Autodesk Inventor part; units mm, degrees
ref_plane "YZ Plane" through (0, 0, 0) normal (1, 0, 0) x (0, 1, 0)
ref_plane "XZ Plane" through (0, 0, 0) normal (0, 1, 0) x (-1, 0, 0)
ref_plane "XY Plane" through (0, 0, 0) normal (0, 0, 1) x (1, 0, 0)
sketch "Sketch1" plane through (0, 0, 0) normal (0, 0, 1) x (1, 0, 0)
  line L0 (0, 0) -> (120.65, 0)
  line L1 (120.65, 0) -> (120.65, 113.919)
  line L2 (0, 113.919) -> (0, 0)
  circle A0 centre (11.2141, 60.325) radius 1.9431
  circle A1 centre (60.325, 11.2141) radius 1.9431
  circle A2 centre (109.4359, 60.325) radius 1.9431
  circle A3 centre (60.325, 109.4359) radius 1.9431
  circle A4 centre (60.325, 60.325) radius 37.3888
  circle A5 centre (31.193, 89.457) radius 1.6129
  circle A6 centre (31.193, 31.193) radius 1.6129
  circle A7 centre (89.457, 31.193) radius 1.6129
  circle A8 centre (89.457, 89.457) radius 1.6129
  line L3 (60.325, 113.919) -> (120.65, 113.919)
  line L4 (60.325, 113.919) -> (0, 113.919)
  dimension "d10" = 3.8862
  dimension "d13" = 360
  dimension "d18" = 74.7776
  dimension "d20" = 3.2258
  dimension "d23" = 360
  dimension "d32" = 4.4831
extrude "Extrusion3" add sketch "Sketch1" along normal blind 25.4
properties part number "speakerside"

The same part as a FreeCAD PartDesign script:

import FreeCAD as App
import Part
import Sketcher
Q = App.Units.Quantity


def add_polygon(sketch, points):
    """Adds a closed chain of lines whose ends are joined by coincident constraints."""
    first, n = sketch.GeometryCount, len(points)
    for a, b in zip(points, points[1:] + points[:1]):
        sketch.addGeometry(Part.LineSegment(App.Vector(*a, 0), App.Vector(*b, 0)), False)
    for i in range(n):
        sketch.addConstraint(Sketcher.Constraint("Coincident", first + i, 2, first + (i + 1) % n, 1))

doc = App.newDocument("Part")
params = doc.addObject("Spreadsheet::Sheet", "Params")
for row, (alias, value) in enumerate([
    ("sketch1_diameter", "0.127 in"),
    ("sketch1_diameter2", "0.153 in"),
    ("sketch1_diameter3", "2.944 in"),
    ("sketch1_width", "4.75 in"),
    ("sketch1_height", "4.485 in"),
    ("pad1_length", "1 in"),
], start=1):
    params.set(f"A{row}", alias)
    params.set(f"B{row}", "=" + value)
    params.setAlias(f"B{row}", alias)

body = doc.addObject("PartDesign::Body", "Body")

sketch1 = body.newObject("Sketcher::SketchObject", "Sketch")
sketch1.AttachmentSupport = (doc.getObject("XY_Plane"), [""])
sketch1.MapMode = "FlatFace"
add_polygon(sketch1, [(0, 113.919), (0, 0), (120.65, 0), (120.65, 113.919)])
sketch1.addGeometry(Part.Circle(App.Vector(31.193, 31.193, 0), App.Vector(0, 0, 1), 1.6129), False)
sketch1.addGeometry(Part.Circle(App.Vector(60.325, 11.2141, 0), App.Vector(0, 0, 1), 1.9431), False)
sketch1.addGeometry(Part.Circle(App.Vector(89.457, 31.193, 0), App.Vector(0, 0, 1), 1.6129), False)
sketch1.addGeometry(Part.Circle(App.Vector(11.2141, 60.325, 0), App.Vector(0, 0, 1), 1.9431), False)
sketch1.addGeometry(Part.Circle(App.Vector(31.193, 89.457, 0), App.Vector(0, 0, 1), 1.6129), False)
sketch1.addGeometry(Part.Circle(App.Vector(60.325, 60.325, 0), App.Vector(0, 0, 1), 37.3888), False)
sketch1.addGeometry(Part.Circle(App.Vector(109.4359, 60.325, 0), App.Vector(0, 0, 1), 1.9431), False)
sketch1.addGeometry(Part.Circle(App.Vector(89.457, 89.457, 0), App.Vector(0, 0, 1), 1.6129), False)
sketch1.addGeometry(Part.Circle(App.Vector(60.325, 109.4359, 0), App.Vector(0, 0, 1), 1.9431), False)
sketch1.addConstraint(Sketcher.Constraint("Vertical", 0))
sketch1.addConstraint(Sketcher.Constraint("Horizontal", 1))
sketch1.addConstraint(Sketcher.Constraint("Vertical", 2))
sketch1.addConstraint(Sketcher.Constraint("Horizontal", 3))
sketch1.addConstraint(Sketcher.Constraint("Coincident", 0, 2, -1, 1))
sketch1.addConstraint(Sketcher.Constraint("Equal", 4, 6))
sketch1.addConstraint(Sketcher.Constraint("Equal", 5, 7))
sketch1.addConstraint(Sketcher.Constraint("Equal", 6, 8))
sketch1.addConstraint(Sketcher.Constraint("Equal", 7, 10))
sketch1.addConstraint(Sketcher.Constraint("Equal", 8, 11))
sketch1.addConstraint(Sketcher.Constraint("Equal", 10, 12))
sketch1.addConstraint(Sketcher.Constraint("Horizontal", 4, 3, 6, 3))
sketch1.addConstraint(Sketcher.Constraint("Horizontal", 7, 3, 9, 3))
sketch1.addConstraint(Sketcher.Constraint("Horizontal", 9, 3, 10, 3))
sketch1.addConstraint(Sketcher.Constraint("Horizontal", 8, 3, 11, 3))
sketch1.addConstraint(Sketcher.Constraint("Vertical", 4, 3, 8, 3))
sketch1.addConstraint(Sketcher.Constraint("Vertical", 5, 3, 9, 3))
sketch1.addConstraint(Sketcher.Constraint("Vertical", 6, 3, 11, 3))
sketch1.addConstraint(Sketcher.Constraint("Vertical", 9, 3, 12, 3))
sketch1.addConstraint(Sketcher.Constraint("Diameter", 4, Q("0.127 in")))
sketch1.addConstraint(Sketcher.Constraint("Diameter", 5, Q("0.153 in")))
sketch1.addConstraint(Sketcher.Constraint("Diameter", 9, Q("2.944 in")))
sketch1.addConstraint(Sketcher.Constraint("DistanceX", 1, 1, 1, 2, Q("4.75 in")))
sketch1.addConstraint(Sketcher.Constraint("DistanceY", 12, 3, 2, 2, Q("0.1765 in")))
sketch1.addConstraint(Sketcher.Constraint("DistanceY", 0, 2, 0, 1, Q("4.485 in")))
sketch1.addConstraint(Sketcher.Constraint("DistanceY", 10, 3, 2, 2, Q("2.11 in")))
sketch1.addConstraint(Sketcher.Constraint("DistanceX", -1, 1, 5, 3, Q("2.375 in")))
sketch1.addConstraint(Sketcher.Constraint("DistanceY", -1, 1, 5, 3, Q("0.4415 in")))
sketch1.addConstraint(Sketcher.Constraint("DistanceX", -1, 1, 7, 3, Q("0.4415 in")))
sketch1.addConstraint(Sketcher.Constraint("DistanceX", -1, 1, 10, 3, Q("4.3085 in")))
sketch1.addConstraint(Sketcher.Constraint("DistanceX", -1, 1, 4, 3, Q("31.193 mm")))
sketch1.addConstraint(Sketcher.Constraint("DistanceY", -1, 1, 4, 3, Q("31.193 mm")))
sketch1.addConstraint(Sketcher.Constraint("DistanceX", -1, 1, 6, 3, Q("89.457 mm")))
sketch1.addConstraint(Sketcher.Constraint("DistanceY", -1, 1, 8, 3, Q("89.457 mm")))
sketch1.setExpression("Constraints[23]", "Params.sketch1_diameter")
sketch1.setExpression("Constraints[24]", "Params.sketch1_diameter2")
sketch1.setExpression("Constraints[25]", "Params.sketch1_diameter3")
sketch1.setExpression("Constraints[26]", "Params.sketch1_width")
sketch1.setExpression("Constraints[28]", "Params.sketch1_height")
pad1 = body.newObject("PartDesign::Pad", "Pad")
pad1.Profile = sketch1
pad1.setExpression("Length", "Params.pad1_length")

doc.recompute()
